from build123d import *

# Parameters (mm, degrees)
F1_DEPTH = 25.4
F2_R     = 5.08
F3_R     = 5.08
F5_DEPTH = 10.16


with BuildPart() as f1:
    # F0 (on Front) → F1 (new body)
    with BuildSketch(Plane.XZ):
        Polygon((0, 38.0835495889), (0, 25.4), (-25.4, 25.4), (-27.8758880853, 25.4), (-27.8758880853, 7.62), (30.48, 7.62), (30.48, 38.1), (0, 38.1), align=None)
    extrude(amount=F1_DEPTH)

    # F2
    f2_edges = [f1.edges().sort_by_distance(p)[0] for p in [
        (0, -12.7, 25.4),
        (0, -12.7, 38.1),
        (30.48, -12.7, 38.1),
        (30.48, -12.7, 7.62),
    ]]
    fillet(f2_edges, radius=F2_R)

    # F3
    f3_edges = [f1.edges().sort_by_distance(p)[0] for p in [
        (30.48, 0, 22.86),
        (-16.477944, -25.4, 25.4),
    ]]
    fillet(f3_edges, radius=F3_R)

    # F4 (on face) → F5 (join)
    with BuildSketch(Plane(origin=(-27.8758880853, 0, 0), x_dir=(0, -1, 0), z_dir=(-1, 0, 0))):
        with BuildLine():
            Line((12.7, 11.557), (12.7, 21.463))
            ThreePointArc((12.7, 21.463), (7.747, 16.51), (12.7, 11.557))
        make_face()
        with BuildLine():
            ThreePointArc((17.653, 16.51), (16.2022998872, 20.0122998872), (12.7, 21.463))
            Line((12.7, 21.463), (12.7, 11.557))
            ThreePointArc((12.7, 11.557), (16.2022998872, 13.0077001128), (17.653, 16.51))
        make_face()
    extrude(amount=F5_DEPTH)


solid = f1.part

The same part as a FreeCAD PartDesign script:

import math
import FreeCAD as App
import Part
import Sketcher

V = App.Vector
Q = App.Units.Quantity


def edges_at(feature, points):
    """Names of the edges that pass closest to the given points."""
    edges = feature.Shape.Edges
    near = lambda p: min(range(len(edges)), key=lambda i: edges[i].distToShape(Part.Vertex(*p))[0])
    return sorted({f"Edge{near(p) + 1}" for p in points})

doc = App.newDocument("Part")
params = doc.addObject("Spreadsheet::Sheet", "Params")
for row, (alias, value) in enumerate([
    ("sketch1_width", "1.2 in"),
    ("sketch1_height", "0.7 in"),
    ("pad1_length", "1 in"),
    ("fillet_radius", "0.2 in"),
    ("fillet2_radius", "0.2 in"),
    ("sketch2_radius", "0.195 in"),
    ("pad2_length", "0.4 in"),
], start=1):
    params.set(f"A{row}", alias)
    params.set(f"B{row}", "=" + value)
    params.setAlias(f"B{row}", alias)

body = doc.addObject("PartDesign::Body", "Body")

sketch1 = doc.addObject("Sketcher::SketchObject", "Sketch")
body.addObject(sketch1)
sketch1.AttachmentSupport = (doc.XZ_Plane, [""])
sketch1.MapMode = "FlatFace"
sketch1.addGeometry([
    Part.LineSegment(V(0, 25.4, 0), V(-27.875888, 25.4, 0)),
    Part.LineSegment(V(-27.875888, 25.4, 0), V(-27.875888, 7.62, 0)),
    Part.LineSegment(V(-27.875888, 7.62, 0), V(30.48, 7.62, 0)),
    Part.LineSegment(V(30.48, 7.62, 0), V(30.48, 38.1, 0)),
    Part.LineSegment(V(30.48, 38.1, 0), V(0, 38.1, 0)),
    Part.LineSegment(V(0, 38.1, 0), V(0, 25.4, 0)),
], False)
sketch1.addConstraint([
    Sketcher.Constraint("Coincident", 0, 2, 1, 1),
    Sketcher.Constraint("Coincident", 1, 2, 2, 1),
    Sketcher.Constraint("Coincident", 2, 2, 3, 1),
    Sketcher.Constraint("Coincident", 3, 2, 4, 1),
    Sketcher.Constraint("Coincident", 4, 2, 5, 1),
    Sketcher.Constraint("Coincident", 5, 2, 0, 1),
    Sketcher.Constraint("Horizontal", 0),
    Sketcher.Constraint("Vertical", 1),
    Sketcher.Constraint("Horizontal", 2),
    Sketcher.Constraint("Vertical", 3),
    Sketcher.Constraint("Horizontal", 4),
    Sketcher.Constraint("Vertical", 5),
    Sketcher.Constraint("PointOnObject", 4, 2, -2),
    Sketcher.Constraint("Equal", 4, 3),
    Sketcher.Constraint("DistanceX", 4, 2, 4, 1, Q("1.2 in")),
    Sketcher.Constraint("DistanceY", 1, 2, 1, 1, Q("0.7 in")),
    Sketcher.Constraint("DistanceY", -1, 1, 0, 2, Q("1 in")),
    Sketcher.Constraint("DistanceX", 0, 2, 0, 1, Q("27.875888 mm")),
])
sketch1.setExpression("Constraints[14]", "Params.sketch1_width")
sketch1.setExpression("Constraints[15]", "Params.sketch1_height")
pad1 = doc.addObject("PartDesign::Pad", "Pad")
body.addObject(pad1)
pad1.Profile = sketch1
pad1.setExpression("Length", "Params.pad1_length")
doc.recompute()

fillet = doc.addObject("PartDesign::Fillet", "Fillet")
body.addObject(fillet)
fillet.Base = (pad1, edges_at(pad1, [
    (0, -12.7, 25.4),
    (0, -12.7, 38.1),
    (30.48, -12.7, 38.1),
    (30.48, -12.7, 7.62),
]))
fillet.setExpression("Radius", "Params.fillet_radius")
doc.recompute()

fillet2 = doc.addObject("PartDesign::Fillet", "Fillet001")
body.addObject(fillet2)
fillet2.Base = (fillet, edges_at(fillet, [(30.48, 0, 22.86), (-16.478, -25.4, 25.4)]))
fillet2.setExpression("Radius", "Params.fillet2_radius")

sketch2 = doc.addObject("Sketcher::SketchObject", "Sketch001")
body.addObject(sketch2)
sketch2.AttachmentSupport = (doc.YZ_Plane, [""])
sketch2.MapMode = "FlatFace"
sketch2.AttachmentOffset = App.Placement(V(0, 0, -27.875888), App.Rotation())
sketch2.addGeometry([
    Part.ArcOfCircle(Part.Circle(V(-12.7, 16.51, 0), V(0, 0, 1), 4.953), math.radians(-90), math.radians(90)),
    Part.ArcOfCircle(Part.Circle(V(-12.7, 16.51, 0), V(0, 0, 1), 4.953), math.radians(180), math.radians(270)),
    Part.ArcOfCircle(Part.Circle(V(-12.7, 16.51, 0), V(0, 0, 1), 4.953), math.radians(90), math.radians(180)),
], False)
sketch2.addConstraint([
    Sketcher.Constraint("Tangent", 0, 1, 1, 2),
    Sketcher.Constraint("Tangent", 1, 1, 2, 2),
    Sketcher.Constraint("Tangent", 2, 1, 0, 2),
    Sketcher.Constraint("Horizontal", 2, 3, 1, 1),
    Sketcher.Constraint("Vertical", 2, 3, 0, 1),
    Sketcher.Constraint("Vertical", 0, 1, 2, 1),
    Sketcher.Constraint("Radius", 0, Q("0.195 in")),
    Sketcher.Constraint("DistanceX", 0, 3, -1, 1, Q("0.5 in")),
    Sketcher.Constraint("DistanceY", -1, 1, 0, 3, Q("0.65 in")),
])
sketch2.setExpression("Constraints[6]", "Params.sketch2_radius")
pad2 = doc.addObject("PartDesign::Pad", "Pad001")
body.addObject(pad2)
pad2.Profile = sketch2
pad2.setExpression("Length", "Params.pad2_length")
pad2.Reversed = True

doc.recompute()
